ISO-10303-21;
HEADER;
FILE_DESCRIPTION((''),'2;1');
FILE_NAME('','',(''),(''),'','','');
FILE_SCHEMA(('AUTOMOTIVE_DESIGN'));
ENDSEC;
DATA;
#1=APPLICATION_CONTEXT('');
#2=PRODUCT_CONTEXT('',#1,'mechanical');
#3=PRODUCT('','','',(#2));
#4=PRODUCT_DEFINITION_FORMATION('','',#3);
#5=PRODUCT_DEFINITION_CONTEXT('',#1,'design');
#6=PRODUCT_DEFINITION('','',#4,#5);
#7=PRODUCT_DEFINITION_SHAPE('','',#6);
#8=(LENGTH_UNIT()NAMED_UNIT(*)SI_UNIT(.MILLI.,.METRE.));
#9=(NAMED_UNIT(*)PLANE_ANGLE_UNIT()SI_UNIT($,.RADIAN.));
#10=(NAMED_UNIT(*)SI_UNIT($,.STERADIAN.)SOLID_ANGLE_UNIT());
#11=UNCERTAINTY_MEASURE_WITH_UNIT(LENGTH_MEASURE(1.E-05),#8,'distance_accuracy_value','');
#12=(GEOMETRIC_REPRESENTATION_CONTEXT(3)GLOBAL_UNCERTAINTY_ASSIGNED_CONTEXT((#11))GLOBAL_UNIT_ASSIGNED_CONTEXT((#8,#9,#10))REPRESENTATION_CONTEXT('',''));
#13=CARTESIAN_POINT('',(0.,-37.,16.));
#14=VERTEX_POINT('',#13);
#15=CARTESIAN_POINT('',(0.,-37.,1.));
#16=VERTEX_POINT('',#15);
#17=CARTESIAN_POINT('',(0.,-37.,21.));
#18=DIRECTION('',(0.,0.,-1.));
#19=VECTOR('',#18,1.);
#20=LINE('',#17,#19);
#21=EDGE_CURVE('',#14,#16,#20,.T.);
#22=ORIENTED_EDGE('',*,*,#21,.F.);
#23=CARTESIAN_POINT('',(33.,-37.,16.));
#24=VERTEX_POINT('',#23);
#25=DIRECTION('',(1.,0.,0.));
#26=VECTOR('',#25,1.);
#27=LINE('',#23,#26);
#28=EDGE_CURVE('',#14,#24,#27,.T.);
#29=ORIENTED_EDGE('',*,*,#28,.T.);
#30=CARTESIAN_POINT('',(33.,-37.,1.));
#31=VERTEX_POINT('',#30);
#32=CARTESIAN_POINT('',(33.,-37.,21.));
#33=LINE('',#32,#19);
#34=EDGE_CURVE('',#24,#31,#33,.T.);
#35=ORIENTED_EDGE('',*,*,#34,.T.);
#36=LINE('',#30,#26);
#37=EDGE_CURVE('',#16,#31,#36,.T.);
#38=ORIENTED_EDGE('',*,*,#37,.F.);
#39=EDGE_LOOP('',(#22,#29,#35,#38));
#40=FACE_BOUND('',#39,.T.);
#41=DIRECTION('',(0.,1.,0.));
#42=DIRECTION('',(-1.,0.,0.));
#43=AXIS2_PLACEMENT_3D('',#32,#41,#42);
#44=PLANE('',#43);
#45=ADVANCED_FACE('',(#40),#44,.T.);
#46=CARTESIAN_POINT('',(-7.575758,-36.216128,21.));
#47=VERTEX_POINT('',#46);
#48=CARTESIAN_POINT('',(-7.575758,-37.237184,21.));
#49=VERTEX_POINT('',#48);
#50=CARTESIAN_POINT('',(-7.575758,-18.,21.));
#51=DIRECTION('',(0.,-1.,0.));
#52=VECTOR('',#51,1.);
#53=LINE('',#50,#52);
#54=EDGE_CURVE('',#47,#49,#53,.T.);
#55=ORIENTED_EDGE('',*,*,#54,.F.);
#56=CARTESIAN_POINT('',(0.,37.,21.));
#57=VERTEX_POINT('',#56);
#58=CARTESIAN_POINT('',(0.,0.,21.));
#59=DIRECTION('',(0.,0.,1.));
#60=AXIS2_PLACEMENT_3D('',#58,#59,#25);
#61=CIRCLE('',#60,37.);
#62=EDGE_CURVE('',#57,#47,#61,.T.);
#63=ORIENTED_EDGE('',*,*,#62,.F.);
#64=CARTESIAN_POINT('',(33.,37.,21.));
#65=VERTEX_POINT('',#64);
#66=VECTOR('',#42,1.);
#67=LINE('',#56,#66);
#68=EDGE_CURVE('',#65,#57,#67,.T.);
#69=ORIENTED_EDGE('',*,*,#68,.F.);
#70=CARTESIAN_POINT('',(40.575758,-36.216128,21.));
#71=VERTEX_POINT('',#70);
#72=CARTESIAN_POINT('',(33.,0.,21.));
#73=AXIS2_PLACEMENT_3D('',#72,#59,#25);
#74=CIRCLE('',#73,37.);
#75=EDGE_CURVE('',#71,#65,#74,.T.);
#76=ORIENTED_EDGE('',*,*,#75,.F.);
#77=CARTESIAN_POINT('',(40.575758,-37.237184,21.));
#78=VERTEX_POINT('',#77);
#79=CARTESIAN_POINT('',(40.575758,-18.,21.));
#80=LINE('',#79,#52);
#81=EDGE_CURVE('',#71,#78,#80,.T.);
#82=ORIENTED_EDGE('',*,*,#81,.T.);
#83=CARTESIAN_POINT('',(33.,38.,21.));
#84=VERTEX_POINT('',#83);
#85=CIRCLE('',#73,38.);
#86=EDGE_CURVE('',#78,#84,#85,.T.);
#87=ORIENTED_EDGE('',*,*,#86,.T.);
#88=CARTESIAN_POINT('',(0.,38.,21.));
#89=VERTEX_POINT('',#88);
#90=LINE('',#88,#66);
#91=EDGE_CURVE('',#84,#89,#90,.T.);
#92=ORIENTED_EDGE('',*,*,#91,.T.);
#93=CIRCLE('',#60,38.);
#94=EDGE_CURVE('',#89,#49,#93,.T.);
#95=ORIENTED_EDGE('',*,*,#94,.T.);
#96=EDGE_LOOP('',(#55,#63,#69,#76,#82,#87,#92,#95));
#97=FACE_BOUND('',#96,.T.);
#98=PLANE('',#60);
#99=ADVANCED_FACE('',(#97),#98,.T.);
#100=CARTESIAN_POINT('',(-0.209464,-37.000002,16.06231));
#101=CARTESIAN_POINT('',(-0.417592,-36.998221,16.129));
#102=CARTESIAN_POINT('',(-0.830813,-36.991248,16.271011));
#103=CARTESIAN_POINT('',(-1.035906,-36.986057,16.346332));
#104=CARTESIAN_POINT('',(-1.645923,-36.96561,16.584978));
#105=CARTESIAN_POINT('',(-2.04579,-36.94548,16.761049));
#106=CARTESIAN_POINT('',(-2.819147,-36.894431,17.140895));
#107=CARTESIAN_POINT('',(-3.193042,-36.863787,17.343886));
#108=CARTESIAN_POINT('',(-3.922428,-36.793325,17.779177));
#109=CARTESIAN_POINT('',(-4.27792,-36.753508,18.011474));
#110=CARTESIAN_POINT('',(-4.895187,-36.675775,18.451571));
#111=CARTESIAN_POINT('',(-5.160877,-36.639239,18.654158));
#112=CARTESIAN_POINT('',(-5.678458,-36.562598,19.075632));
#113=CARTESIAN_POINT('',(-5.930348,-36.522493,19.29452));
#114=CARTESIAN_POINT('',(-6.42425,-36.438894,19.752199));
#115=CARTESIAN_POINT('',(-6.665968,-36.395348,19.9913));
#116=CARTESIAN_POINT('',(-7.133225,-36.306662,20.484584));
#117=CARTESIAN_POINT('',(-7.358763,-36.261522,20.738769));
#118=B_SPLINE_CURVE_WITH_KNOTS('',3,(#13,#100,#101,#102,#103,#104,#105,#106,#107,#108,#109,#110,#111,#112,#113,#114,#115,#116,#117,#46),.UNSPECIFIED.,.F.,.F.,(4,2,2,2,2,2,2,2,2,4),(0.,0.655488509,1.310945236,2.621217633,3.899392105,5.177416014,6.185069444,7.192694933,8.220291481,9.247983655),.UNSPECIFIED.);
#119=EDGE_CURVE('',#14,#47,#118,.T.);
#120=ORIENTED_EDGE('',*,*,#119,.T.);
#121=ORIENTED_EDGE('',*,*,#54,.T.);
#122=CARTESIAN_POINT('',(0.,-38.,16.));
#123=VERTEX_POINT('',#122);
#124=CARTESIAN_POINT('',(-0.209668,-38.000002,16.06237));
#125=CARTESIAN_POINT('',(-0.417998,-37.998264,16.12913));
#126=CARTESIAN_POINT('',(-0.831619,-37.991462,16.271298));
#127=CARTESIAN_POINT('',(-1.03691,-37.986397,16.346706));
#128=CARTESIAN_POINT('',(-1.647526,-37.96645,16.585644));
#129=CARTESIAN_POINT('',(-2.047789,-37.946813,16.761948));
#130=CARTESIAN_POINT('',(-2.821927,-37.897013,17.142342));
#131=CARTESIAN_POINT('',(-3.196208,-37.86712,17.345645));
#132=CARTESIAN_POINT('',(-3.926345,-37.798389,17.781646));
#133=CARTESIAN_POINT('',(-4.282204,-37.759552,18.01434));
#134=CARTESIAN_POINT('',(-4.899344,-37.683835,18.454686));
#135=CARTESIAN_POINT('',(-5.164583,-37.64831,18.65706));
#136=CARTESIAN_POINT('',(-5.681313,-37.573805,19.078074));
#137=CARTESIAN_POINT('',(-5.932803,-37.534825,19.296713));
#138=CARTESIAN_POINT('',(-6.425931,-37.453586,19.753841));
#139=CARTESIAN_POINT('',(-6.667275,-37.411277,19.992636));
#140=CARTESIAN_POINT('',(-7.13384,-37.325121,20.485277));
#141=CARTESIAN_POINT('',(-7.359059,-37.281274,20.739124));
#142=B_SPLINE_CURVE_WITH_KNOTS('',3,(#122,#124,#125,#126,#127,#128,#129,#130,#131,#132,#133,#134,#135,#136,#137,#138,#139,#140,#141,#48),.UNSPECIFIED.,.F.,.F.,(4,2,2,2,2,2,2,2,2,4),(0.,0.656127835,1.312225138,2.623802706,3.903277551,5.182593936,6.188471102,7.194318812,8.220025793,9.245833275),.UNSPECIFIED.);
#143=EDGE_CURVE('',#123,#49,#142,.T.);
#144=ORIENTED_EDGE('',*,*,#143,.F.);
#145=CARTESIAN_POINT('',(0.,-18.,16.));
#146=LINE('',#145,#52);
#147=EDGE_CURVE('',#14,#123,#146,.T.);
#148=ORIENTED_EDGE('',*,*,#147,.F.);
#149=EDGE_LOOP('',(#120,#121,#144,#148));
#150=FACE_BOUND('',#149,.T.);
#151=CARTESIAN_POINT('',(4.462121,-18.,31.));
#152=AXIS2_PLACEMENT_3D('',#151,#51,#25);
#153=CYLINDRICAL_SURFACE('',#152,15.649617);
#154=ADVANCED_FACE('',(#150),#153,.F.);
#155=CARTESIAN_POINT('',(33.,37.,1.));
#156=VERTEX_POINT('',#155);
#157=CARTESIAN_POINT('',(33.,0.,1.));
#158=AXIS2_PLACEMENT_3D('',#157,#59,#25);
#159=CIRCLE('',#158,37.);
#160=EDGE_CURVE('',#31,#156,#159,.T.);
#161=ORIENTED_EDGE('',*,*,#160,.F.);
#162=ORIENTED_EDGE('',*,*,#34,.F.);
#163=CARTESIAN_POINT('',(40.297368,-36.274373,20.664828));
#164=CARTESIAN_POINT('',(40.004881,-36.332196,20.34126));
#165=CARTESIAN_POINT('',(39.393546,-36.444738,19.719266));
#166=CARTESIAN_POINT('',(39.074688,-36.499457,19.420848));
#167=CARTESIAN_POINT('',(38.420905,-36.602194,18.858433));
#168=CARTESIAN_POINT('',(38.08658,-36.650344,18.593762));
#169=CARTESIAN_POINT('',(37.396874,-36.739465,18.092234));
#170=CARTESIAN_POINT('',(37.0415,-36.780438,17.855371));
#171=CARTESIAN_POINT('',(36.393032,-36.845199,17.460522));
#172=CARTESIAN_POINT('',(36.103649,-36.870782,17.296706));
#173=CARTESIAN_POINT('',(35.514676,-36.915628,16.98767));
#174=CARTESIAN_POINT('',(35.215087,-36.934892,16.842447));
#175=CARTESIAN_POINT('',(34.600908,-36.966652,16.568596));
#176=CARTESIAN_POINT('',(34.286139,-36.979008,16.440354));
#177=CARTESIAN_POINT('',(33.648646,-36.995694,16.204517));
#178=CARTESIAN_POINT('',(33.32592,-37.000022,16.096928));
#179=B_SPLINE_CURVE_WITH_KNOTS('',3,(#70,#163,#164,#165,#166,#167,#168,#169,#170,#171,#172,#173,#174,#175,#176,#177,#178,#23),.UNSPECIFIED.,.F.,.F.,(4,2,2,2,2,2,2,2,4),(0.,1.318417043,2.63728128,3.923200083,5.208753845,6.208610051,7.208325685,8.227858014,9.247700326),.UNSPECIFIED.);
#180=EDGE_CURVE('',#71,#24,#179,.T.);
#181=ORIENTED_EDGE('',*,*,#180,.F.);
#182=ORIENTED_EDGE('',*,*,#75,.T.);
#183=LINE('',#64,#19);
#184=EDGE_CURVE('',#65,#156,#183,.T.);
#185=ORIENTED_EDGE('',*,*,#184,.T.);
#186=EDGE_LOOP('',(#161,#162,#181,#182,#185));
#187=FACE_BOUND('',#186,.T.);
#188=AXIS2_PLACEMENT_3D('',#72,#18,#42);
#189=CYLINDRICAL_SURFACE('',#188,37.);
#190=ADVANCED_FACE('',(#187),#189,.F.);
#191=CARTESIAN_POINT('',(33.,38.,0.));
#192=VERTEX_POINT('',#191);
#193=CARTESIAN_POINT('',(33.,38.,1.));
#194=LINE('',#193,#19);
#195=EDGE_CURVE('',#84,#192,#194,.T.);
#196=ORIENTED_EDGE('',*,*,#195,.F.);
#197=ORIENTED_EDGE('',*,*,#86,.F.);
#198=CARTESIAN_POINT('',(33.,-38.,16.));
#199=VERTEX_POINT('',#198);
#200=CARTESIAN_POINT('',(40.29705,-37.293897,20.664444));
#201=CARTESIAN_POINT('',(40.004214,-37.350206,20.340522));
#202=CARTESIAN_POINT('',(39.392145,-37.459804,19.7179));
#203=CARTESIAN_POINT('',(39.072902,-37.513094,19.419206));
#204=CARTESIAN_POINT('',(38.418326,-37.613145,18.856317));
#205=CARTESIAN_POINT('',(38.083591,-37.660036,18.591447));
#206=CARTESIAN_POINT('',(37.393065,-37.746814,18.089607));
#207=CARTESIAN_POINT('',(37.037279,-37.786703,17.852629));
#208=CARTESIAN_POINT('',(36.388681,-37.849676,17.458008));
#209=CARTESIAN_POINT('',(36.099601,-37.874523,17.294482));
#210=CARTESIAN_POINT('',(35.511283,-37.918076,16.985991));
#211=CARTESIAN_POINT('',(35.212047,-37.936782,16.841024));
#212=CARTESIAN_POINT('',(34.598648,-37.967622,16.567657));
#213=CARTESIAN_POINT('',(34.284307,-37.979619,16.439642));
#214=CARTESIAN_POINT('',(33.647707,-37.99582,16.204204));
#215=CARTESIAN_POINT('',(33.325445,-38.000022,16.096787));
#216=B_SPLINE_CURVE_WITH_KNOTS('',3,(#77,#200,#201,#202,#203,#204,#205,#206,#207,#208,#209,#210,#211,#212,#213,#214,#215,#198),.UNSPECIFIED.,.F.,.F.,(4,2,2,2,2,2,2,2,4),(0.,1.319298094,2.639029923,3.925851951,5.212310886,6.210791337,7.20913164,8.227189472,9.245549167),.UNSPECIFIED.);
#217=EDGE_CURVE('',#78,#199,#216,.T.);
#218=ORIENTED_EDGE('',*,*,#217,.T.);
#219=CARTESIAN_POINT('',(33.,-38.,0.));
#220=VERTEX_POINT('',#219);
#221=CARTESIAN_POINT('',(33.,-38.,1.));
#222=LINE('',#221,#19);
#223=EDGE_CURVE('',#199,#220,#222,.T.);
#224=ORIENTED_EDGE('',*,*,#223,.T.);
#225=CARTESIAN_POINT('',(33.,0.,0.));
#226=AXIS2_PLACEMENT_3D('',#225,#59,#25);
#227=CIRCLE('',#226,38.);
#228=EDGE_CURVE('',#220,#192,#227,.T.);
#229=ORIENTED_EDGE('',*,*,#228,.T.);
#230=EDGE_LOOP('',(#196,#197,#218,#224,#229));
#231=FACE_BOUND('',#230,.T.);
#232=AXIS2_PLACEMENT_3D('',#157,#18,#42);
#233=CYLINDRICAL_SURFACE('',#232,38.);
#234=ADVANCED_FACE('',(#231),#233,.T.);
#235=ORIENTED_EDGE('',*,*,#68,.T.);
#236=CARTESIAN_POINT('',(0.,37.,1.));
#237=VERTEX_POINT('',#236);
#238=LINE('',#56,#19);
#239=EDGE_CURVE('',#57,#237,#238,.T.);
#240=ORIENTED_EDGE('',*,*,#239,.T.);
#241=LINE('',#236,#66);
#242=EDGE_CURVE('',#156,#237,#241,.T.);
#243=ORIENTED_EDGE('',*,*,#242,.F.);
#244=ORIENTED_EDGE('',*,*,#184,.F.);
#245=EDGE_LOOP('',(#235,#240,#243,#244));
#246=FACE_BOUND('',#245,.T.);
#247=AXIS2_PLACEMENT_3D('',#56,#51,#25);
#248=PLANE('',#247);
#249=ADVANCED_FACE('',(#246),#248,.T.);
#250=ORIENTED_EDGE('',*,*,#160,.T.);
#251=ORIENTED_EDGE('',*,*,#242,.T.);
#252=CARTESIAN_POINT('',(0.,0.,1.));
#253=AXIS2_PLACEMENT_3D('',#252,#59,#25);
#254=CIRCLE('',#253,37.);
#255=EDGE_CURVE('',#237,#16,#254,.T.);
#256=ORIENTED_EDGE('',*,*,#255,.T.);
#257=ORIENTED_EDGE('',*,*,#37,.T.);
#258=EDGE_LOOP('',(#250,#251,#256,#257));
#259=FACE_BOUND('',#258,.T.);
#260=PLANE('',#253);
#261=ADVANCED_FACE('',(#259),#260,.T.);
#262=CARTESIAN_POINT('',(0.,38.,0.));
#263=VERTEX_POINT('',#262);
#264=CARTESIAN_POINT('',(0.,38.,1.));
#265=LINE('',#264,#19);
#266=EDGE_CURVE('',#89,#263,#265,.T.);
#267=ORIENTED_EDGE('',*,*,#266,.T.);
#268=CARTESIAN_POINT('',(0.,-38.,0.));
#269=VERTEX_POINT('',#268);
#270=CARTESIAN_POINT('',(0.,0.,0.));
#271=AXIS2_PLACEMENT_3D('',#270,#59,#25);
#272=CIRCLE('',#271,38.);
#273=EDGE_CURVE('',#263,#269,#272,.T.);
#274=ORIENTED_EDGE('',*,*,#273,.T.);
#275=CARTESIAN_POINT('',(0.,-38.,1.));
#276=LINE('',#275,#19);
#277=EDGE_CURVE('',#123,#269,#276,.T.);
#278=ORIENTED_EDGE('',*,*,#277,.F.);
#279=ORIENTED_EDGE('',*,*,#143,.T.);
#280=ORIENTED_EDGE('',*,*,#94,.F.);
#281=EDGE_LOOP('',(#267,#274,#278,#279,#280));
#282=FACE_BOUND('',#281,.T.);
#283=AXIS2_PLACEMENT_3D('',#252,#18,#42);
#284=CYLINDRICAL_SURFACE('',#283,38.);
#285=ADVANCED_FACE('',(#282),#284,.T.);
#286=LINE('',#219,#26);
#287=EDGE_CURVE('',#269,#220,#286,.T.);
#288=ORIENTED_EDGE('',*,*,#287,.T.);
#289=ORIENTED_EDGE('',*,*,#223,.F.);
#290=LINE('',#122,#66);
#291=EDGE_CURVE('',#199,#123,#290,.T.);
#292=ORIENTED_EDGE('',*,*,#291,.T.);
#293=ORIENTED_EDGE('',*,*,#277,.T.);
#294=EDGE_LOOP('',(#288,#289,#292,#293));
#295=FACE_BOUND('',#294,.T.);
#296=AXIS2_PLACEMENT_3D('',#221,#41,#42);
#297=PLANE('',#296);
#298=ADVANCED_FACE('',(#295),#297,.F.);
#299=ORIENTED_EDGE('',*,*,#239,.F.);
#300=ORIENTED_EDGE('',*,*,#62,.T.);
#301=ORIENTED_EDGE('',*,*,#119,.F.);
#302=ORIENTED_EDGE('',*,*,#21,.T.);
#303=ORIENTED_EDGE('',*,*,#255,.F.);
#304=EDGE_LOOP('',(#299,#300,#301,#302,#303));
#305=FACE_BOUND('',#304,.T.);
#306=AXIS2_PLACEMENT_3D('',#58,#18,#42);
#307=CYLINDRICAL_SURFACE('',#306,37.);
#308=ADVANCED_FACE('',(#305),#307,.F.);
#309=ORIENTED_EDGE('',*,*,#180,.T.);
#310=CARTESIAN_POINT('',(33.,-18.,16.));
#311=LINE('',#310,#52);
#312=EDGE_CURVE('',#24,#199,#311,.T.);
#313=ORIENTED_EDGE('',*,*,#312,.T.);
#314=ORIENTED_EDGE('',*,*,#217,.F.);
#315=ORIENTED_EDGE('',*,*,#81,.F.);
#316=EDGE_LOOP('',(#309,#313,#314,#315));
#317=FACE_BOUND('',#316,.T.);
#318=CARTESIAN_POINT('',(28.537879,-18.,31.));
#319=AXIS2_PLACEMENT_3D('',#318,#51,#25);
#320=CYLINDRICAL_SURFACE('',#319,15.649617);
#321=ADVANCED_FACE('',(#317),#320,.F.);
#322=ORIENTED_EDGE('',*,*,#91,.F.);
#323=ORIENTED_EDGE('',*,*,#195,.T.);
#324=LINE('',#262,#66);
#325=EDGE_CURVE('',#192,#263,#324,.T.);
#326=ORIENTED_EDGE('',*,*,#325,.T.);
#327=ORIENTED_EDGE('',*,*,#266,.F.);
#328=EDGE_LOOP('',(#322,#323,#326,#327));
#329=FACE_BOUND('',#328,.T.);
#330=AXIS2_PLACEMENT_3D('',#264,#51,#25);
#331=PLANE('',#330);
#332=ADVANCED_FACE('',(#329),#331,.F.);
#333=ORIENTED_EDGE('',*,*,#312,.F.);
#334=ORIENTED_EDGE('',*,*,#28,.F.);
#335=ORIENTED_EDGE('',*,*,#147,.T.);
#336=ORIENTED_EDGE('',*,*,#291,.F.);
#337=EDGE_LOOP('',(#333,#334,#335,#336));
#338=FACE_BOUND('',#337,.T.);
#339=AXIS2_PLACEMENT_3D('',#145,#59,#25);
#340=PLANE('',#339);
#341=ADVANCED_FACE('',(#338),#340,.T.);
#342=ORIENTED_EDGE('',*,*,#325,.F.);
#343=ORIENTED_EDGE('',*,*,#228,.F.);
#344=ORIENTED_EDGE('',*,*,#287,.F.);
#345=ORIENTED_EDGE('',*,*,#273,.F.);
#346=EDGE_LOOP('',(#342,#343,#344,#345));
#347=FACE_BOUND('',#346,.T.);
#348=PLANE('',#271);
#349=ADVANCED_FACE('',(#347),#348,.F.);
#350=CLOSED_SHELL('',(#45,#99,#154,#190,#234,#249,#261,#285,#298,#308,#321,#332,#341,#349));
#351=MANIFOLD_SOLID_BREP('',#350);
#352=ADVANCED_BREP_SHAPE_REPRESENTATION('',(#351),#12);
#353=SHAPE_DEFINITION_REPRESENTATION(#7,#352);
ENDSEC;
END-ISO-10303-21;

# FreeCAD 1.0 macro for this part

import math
import FreeCAD as App
import Part
import Sketcher
from FreeCAD import Vector

doc = App.newDocument("Part")
params = doc.addObject("Spreadsheet::Sheet", "Params")
for row, (alias, value) in enumerate([
    ("sketch1_radius", "38 mm"),
    ("sketch1_width", "33 mm"),
    ("pad1_length", "1 mm"),
    ("sketch2_radius", "38 mm"),
    ("sketch2_radius2", "37 mm"),
    ("sketch2_width", "33 mm"),
    ("pad2_length", "20 mm"),
    ("sketch3_width", "33 mm"),
    ("pocket1_length", "20 mm"),
], start=1):
    params.set(f"A{row}", alias)
    params.set(f"B{row}", "=" + value)
    params.setAlias(f"B{row}", alias)

body = doc.addObject("PartDesign::Body", "Body")

# Sketch on XY plane
sketch1 = body.newObject("Sketcher::SketchObject", "Sketch")
sketch1.AttachmentSupport = (doc.getObject("XY_Plane"), [""])
sketch1.MapMode = "FlatFace"
sketch1.addGeometry(Part.LineSegment(Vector(33, 38, 0), Vector(0, 38, 0)), False)
sketch1.addGeometry(Part.ArcOfCircle(Part.Circle(Vector(0, 0, 0), Vector(0, 0, 1), 38), math.radians(90), math.radians(270)), False)
sketch1.addGeometry(Part.LineSegment(Vector(0, -38, 0), Vector(33, -38, 0)), False)
sketch1.addGeometry(Part.ArcOfCircle(Part.Circle(Vector(33, 0, 0), Vector(0, 0, 1), 38), math.radians(-90), math.radians(90)), False)
sketch1.addConstraint(Sketcher.Constraint("Tangent", 0, 2, 1, 1))
sketch1.addConstraint(Sketcher.Constraint("Tangent", 1, 2, 2, 1))
sketch1.addConstraint(Sketcher.Constraint("Tangent", 2, 2, 3, 1))
sketch1.addConstraint(Sketcher.Constraint("Tangent", 3, 2, 0, 1))
sketch1.addConstraint(Sketcher.Constraint("Horizontal", 0))
sketch1.addConstraint(Sketcher.Constraint("Horizontal", 2))
sketch1.addConstraint(Sketcher.Constraint("Coincident", 1, 3, -1, 1))
sketch1.addConstraint(Sketcher.Constraint("Radius", 1, 38.0))
sketch1.addConstraint(Sketcher.Constraint("DistanceX", 0, 2, 0, 1, 33.0))
sketch1.setExpression("Constraints[7]", "Params.sketch1_radius")
sketch1.setExpression("Constraints[8]", "Params.sketch1_width")
pad1 = body.newObject("PartDesign::Pad", "Pad")
pad1.Profile = sketch1
pad1.setExpression("Length", "Params.pad1_length")

# Sketch on XY plane
sketch2 = body.newObject("Sketcher::SketchObject", "Sketch001")
sketch2.AttachmentSupport = (doc.getObject("XY_Plane"), [""])
sketch2.MapMode = "FlatFace"
sketch2.AttachmentOffset = App.Placement(Vector(0, 0, 1), App.Rotation())
sketch2.addGeometry(Part.LineSegment(Vector(33, 38, 0), Vector(0, 38, 0)), False)
sketch2.addGeometry(Part.ArcOfCircle(Part.Circle(Vector(0, 0, 0), Vector(0, 0, 1), 38), math.radians(90), math.radians(270)), False)
sketch2.addGeometry(Part.LineSegment(Vector(0, -38, 0), Vector(33, -38, 0)), False)
sketch2.addGeometry(Part.ArcOfCircle(Part.Circle(Vector(33, 0, 0), Vector(0, 0, 1), 38), math.radians(-90), math.radians(90)), False)
sketch2.addGeometry(Part.LineSegment(Vector(0, 37, 0), Vector(33, 37, 0)), False)
sketch2.addGeometry(Part.ArcOfCircle(Part.Circle(Vector(33, 0, 0), Vector(0, 0, 1), 37), math.radians(-90), math.radians(90)), False)
sketch2.addGeometry(Part.LineSegment(Vector(33, -37, 0), Vector(0, -37, 0)), False)
sketch2.addGeometry(Part.ArcOfCircle(Part.Circle(Vector(0, 0, 0), Vector(0, 0, 1), 37), math.radians(90), math.radians(270)), False)
sketch2.addConstraint(Sketcher.Constraint("Tangent", 0, 2, 1, 1))
sketch2.addConstraint(Sketcher.Constraint("Tangent", 1, 2, 2, 1))
sketch2.addConstraint(Sketcher.Constraint("Tangent", 2, 2, 3, 1))
sketch2.addConstraint(Sketcher.Constraint("Tangent", 3, 2, 0, 1))
sketch2.addConstraint(Sketcher.Constraint("Tangent", 4, 2, 5, 2))
sketch2.addConstraint(Sketcher.Constraint("Tangent", 5, 1, 6, 1))
sketch2.addConstraint(Sketcher.Constraint("Tangent", 6, 2, 7, 2))
sketch2.addConstraint(Sketcher.Constraint("Tangent", 7, 1, 4, 1))
sketch2.addConstraint(Sketcher.Constraint("Horizontal", 0))
sketch2.addConstraint(Sketcher.Constraint("Horizontal", 2))
sketch2.addConstraint(Sketcher.Constraint("Horizontal", 4))
sketch2.addConstraint(Sketcher.Constraint("Horizontal", 6))
sketch2.addConstraint(Sketcher.Constraint("Coincident", 1, 3, -1, 1))
sketch2.addConstraint(Sketcher.Constraint("Coincident", 7, 3, -1, 1))
sketch2.addConstraint(Sketcher.Constraint("Vertical", 5, 3, 2, 2))
sketch2.addConstraint(Sketcher.Constraint("Radius", 1, 38.0))
sketch2.addConstraint(Sketcher.Constraint("Radius", 5, 37.0))
sketch2.addConstraint(Sketcher.Constraint("DistanceX", 0, 2, 0, 1, 33.0))
sketch2.setExpression("Constraints[15]", "Params.sketch2_radius")
sketch2.setExpression("Constraints[16]", "Params.sketch2_radius2")
sketch2.setExpression("Constraints[17]", "Params.sketch2_width")
pad2 = body.newObject("PartDesign::Pad", "Pad001")
pad2.Profile = sketch2
pad2.setExpression("Length", "Params.pad2_length")

# Sketch on XZ plane
sketch3 = body.newObject("Sketcher::SketchObject", "Sketch002")
sketch3.AttachmentSupport = (doc.getObject("XZ_Plane"), [""])
sketch3.MapMode = "FlatFace"
sketch3.AttachmentOffset = App.Placement(Vector(0, 0, 38), App.Rotation())
sketch3.addGeometry(Part.LineSegment(Vector(0, 16, 0), Vector(33, 16, 0)), False)
sketch3.addGeometry(Part.ArcOfCircle(Part.Circle(Vector(29, 31, 0), Vector(0, 0, 1), 16), math.radians(-73), math.radians(-40)), False)
sketch3.addGeometry(Part.LineSegment(Vector(41, 21, 0), Vector(-8, 21, 0)), False)
sketch3.addGeometry(Part.ArcOfCircle(Part.Circle(Vector(4, 31, 0), Vector(0, 0, 1), 16), math.radians(-140), math.radians(-107)), False)
sketch3.addConstraint(Sketcher.Constraint("Coincident", 0, 2, 1, 1))
sketch3.addConstraint(Sketcher.Constraint("Coincident", 1, 2, 2, 1))
sketch3.addConstraint(Sketcher.Constraint("Coincident", 2, 2, 3, 1))
sketch3.addConstraint(Sketcher.Constraint("Coincident", 3, 2, 0, 1))
sketch3.addConstraint(Sketcher.Constraint("Horizontal", 0))
sketch3.addConstraint(Sketcher.Constraint("Horizontal", 2))
sketch3.addConstraint(Sketcher.Constraint("Equal", 1, 3))
sketch3.addConstraint(Sketcher.Constraint("PointOnObject", 3, 2, -2))
sketch3.addConstraint(Sketcher.Constraint("Horizontal", 1, 3, 3, 3))
sketch3.addConstraint(Sketcher.Constraint("DistanceX", 0, 1, 0, 2, 33.0))
sketch3.addConstraint(Sketcher.Constraint("DistanceY", -1, 1, 1, 3, 31.0))
sketch3.addConstraint(Sketcher.Constraint("DistanceY", -1, 1, 0, 2, 16.0))
sketch3.addConstraint(Sketcher.Constraint("DistanceY", -1, 1, 1, 2, 21.0))
sketch3.addConstraint(Sketcher.Constraint("Radius", 1, 15.649617))
sketch3.setExpression("Constraints[9]", "Params.sketch3_width")
pocket1 = body.newObject("PartDesign::Pocket", "Pocket")
pocket1.Profile = sketch3
pocket1.setExpression("Length", "Params.pocket1_length")

doc.recompute()
